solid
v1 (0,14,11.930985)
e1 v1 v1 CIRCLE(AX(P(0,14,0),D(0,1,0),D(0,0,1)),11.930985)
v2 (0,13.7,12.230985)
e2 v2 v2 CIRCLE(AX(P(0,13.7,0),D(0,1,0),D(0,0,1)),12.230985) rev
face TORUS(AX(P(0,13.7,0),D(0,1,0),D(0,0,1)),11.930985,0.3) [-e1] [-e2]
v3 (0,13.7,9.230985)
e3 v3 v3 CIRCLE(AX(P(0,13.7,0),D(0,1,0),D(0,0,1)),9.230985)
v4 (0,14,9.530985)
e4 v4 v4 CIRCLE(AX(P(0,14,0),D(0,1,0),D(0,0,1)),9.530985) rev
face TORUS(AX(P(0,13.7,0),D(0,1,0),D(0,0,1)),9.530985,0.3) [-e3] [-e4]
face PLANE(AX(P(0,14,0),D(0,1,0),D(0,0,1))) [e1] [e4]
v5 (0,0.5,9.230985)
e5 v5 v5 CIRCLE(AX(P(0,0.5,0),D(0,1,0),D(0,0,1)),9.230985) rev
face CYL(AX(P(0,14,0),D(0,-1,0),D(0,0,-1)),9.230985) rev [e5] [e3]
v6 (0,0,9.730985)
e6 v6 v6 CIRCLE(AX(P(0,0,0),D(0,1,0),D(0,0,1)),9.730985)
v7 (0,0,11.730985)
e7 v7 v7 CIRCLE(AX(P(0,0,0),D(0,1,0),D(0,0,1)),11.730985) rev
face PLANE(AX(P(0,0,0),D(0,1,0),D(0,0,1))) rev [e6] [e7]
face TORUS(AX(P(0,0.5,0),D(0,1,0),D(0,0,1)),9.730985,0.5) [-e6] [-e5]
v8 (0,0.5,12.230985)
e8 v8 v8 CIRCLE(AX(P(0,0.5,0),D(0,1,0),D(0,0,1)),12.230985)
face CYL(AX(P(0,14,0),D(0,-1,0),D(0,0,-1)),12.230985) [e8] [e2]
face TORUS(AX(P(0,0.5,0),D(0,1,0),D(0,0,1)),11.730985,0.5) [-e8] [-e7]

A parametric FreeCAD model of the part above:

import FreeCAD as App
import Part
import Sketcher
Q = App.Units.Quantity


def edges_at(feature, points):
    """Names of the edges that pass closest to the given points."""
    edges = feature.Shape.Edges
    near = lambda p: min(range(len(edges)), key=lambda i: edges[i].distToShape(Part.Vertex(*p))[0])
    return sorted({f"Edge{near(p) + 1}" for p in points})

doc = App.newDocument("Part")
body = doc.addObject("PartDesign::Body", "Body")

sketch1 = doc.addObject("Sketcher::SketchObject", "Sketch")
body.addObject(sketch1)
sketch1.AttachmentSupport = (doc.XZ_Plane, [""])
sketch1.MapMode = "FlatFace"
sketch1.addGeometry(Part.Circle(App.Vector(0, 0, 0), App.Vector(0, 0, 1), 12.230985), False)
sketch1.addGeometry(Part.Circle(App.Vector(0, 0, 0), App.Vector(0, 0, 1), 9.230985), False)
sketch1.addConstraint(Sketcher.Constraint("Coincident", 0, 3, -1, 1))
sketch1.addConstraint(Sketcher.Constraint("Coincident", 1, 3, -1, 1))
sketch1.addConstraint(Sketcher.Constraint("Diameter", 0, Q("24.46197 mm")))
sketch1.addConstraint(Sketcher.Constraint("Diameter", 1, Q("18.46197 mm")))
pad1 = doc.addObject("PartDesign::Pad", "Pad")
body.addObject(pad1)
pad1.Profile = sketch1
pad1.Length = 14
pad1.Reversed = True
doc.recompute()

fillet = doc.addObject("PartDesign::Fillet", "Fillet")
body.addObject(fillet)
fillet.Base = (pad1, edges_at(pad1, [(0, 14, -12.231)]))
fillet.Radius = 0.3
doc.recompute()

fillet2 = doc.addObject("PartDesign::Fillet", "Fillet001")
body.addObject(fillet2)
fillet2.Base = (fillet, edges_at(fillet, [(0, 14, -9.231)]))
fillet2.Radius = 0.3
doc.recompute()

fillet3 = doc.addObject("PartDesign::Fillet", "Fillet002")
body.addObject(fillet3)
fillet3.Base = (fillet2, edges_at(fillet2, [(0, 0, -12.231)]))
fillet3.Radius = 0.5
doc.recompute()

fillet4 = doc.addObject("PartDesign::Fillet", "Fillet003")
body.addObject(fillet4)
fillet4.Base = (fillet3, edges_at(fillet3, [(0, 0, -9.231)]))
fillet4.Radius = 0.5

doc.recompute()
